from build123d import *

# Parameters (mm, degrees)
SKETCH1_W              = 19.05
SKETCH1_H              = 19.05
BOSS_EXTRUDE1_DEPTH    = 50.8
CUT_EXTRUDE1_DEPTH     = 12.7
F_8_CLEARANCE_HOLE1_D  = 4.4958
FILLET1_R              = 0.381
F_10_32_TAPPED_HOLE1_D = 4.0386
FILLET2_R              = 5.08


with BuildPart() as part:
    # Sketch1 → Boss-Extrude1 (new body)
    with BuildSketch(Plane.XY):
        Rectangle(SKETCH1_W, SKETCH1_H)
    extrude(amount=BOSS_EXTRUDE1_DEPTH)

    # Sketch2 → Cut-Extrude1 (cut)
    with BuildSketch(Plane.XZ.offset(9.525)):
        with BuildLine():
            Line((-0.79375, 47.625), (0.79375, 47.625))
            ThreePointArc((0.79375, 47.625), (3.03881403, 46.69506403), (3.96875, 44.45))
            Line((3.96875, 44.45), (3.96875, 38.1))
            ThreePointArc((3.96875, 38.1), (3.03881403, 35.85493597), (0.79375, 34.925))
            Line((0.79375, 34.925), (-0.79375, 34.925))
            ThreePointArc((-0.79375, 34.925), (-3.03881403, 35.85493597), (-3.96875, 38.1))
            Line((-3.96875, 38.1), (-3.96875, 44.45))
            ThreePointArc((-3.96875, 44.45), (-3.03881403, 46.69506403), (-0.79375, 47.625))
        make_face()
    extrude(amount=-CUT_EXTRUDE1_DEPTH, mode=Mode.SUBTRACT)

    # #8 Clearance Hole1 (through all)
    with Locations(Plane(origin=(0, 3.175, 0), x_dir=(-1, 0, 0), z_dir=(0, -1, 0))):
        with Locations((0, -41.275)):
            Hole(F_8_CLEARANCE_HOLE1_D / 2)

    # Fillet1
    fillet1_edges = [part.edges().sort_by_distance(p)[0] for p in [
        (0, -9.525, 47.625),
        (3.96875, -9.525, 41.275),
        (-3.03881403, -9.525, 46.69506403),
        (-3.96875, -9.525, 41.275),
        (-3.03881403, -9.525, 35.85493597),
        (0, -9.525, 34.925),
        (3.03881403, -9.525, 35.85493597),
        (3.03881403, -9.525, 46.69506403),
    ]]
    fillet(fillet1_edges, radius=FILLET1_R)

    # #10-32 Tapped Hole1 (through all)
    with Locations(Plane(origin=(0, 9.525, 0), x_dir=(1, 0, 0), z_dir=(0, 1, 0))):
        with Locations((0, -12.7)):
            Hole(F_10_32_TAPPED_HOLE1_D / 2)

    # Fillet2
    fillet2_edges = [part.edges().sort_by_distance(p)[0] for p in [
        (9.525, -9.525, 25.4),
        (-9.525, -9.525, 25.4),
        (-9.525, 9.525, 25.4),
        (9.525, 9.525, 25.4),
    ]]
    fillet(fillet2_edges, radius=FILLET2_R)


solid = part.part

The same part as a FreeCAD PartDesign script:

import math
import FreeCAD as App
import Part
import Sketcher
from FreeCAD import Vector
Q = App.Units.Quantity


def edges_at(feature, points):
    """Names of the edges that pass closest to the given points."""
    edges = feature.Shape.Edges
    near = lambda p: min(range(len(edges)), key=lambda i: edges[i].distToShape(Part.Vertex(*p))[0])
    return sorted({f"Edge{near(p) + 1}" for p in points})


def add_polygon(sketch, points):
    """Adds a closed chain of lines whose ends are joined by coincident constraints."""
    first, n = sketch.GeometryCount, len(points)
    for a, b in zip(points, points[1:] + points[:1]):
        sketch.addGeometry(Part.LineSegment(App.Vector(*a, 0), App.Vector(*b, 0)), False)
    for i in range(n):
        sketch.addConstraint(Sketcher.Constraint("Coincident", first + i, 2, first + (i + 1) % n, 1))

doc = App.newDocument("Part")
body = doc.addObject("PartDesign::Body", "Body")

sketch1 = doc.addObject("Sketcher::SketchObject", "Sketch")
body.addObject(sketch1)
sketch1.AttachmentSupport = (doc.XY_Plane, [""])
sketch1.MapMode = "FlatFace"
add_polygon(sketch1, [(-9.525, 9.525), (-9.525, -9.525), (9.525, -9.525), (9.525, 9.525)])
sketch1.addConstraint(Sketcher.Constraint("Vertical", 0))
sketch1.addConstraint(Sketcher.Constraint("Horizontal", 1))
sketch1.addConstraint(Sketcher.Constraint("Vertical", 2))
sketch1.addConstraint(Sketcher.Constraint("Horizontal", 3))
sketch1.addConstraint(Sketcher.Constraint("Symmetric", 0, 2, 2, 2, -1, 1))
sketch1.addConstraint(Sketcher.Constraint("Equal", 3, 0))
sketch1.addConstraint(Sketcher.Constraint("DistanceX", 1, 1, 1, 2, Q("0.75 in")))
pad1 = doc.addObject("PartDesign::Pad", "Pad")
body.addObject(pad1)
pad1.Profile = sketch1
pad1.Length = Q("2 in")

sketch2 = doc.addObject("Sketcher::SketchObject", "Sketch001")
body.addObject(sketch2)
sketch2.AttachmentSupport = (doc.XZ_Plane, [""])
sketch2.MapMode = "FlatFace"
sketch2.AttachmentOffset = App.Placement(Vector(0, 0, 0.375 * 25.4), App.Rotation())
sketch2.addGeometry(Part.LineSegment(Vector(0.79375, 47.625, 0), Vector(-0.79375, 47.625, 0)), False)
sketch2.addGeometry(Part.ArcOfCircle(Part.Circle(Vector(-0.79375, 44.45, 0), Vector(0, 0, 1), 3.175), math.radians(90), math.radians(180)), False)
sketch2.addGeometry(Part.LineSegment(Vector(-3.96875, 44.45, 0), Vector(-3.96875, 38.1, 0)), False)
sketch2.addGeometry(Part.ArcOfCircle(Part.Circle(Vector(-0.79375, 38.1, 0), Vector(0, 0, 1), 3.175), math.radians(-180), math.radians(-90)), False)
sketch2.addGeometry(Part.LineSegment(Vector(-0.79375, 34.925, 0), Vector(0.79375, 34.925, 0)), False)
sketch2.addGeometry(Part.ArcOfCircle(Part.Circle(Vector(0.79375, 38.1, 0), Vector(0, 0, 1), 3.175), math.radians(-90), math.radians(0)), False)
sketch2.addGeometry(Part.LineSegment(Vector(3.96875, 38.1, 0), Vector(3.96875, 44.45, 0)), False)
sketch2.addGeometry(Part.ArcOfCircle(Part.Circle(Vector(0.79375, 44.45, 0), Vector(0, 0, 1), 3.175), math.radians(0), math.radians(90)), False)
sketch2.addConstraint(Sketcher.Constraint("Tangent", 0, 2, 1, 1))
sketch2.addConstraint(Sketcher.Constraint("Tangent", 1, 2, 2, 1))
sketch2.addConstraint(Sketcher.Constraint("Tangent", 2, 2, 3, 1))
sketch2.addConstraint(Sketcher.Constraint("Tangent", 3, 2, 4, 1))
sketch2.addConstraint(Sketcher.Constraint("Tangent", 4, 2, 5, 1))
sketch2.addConstraint(Sketcher.Constraint("Tangent", 5, 2, 6, 1))
sketch2.addConstraint(Sketcher.Constraint("Tangent", 6, 2, 7, 1))
sketch2.addConstraint(Sketcher.Constraint("Tangent", 7, 2, 0, 1))
sketch2.addConstraint(Sketcher.Constraint("Horizontal", 0))
sketch2.addConstraint(Sketcher.Constraint("Vertical", 2))
sketch2.addConstraint(Sketcher.Constraint("Horizontal", 4))
sketch2.addConstraint(Sketcher.Constraint("Vertical", 6))
sketch2.addConstraint(Sketcher.Constraint("Equal", 1, 3))
sketch2.addConstraint(Sketcher.Constraint("Equal", 3, 5))
sketch2.addConstraint(Sketcher.Constraint("Equal", 5, 7))
sketch2.addConstraint(Sketcher.Constraint("Radius", 1, Q("0.125 in")))
sketch2.addConstraint(Sketcher.Constraint("DistanceY", 2, 2, 2, 1, Q("0.25 in")))
sketch2.addConstraint(Sketcher.Constraint("DistanceY", -1, 1, 3, 3, Q("1.5 in")))
sketch2.addConstraint(Sketcher.Constraint("DistanceX", 0, 2, 0, 1, Q("0.0625 in")))
sketch2.addConstraint(Sketcher.Constraint("DistanceX", 1, 3, -1, 1, Q("0.03125 in")))
pocket1 = doc.addObject("PartDesign::Pocket", "Pocket")
body.addObject(pocket1)
pocket1.Profile = sketch2
pocket1.Length = Q("0.5 in")

sketch3 = doc.addObject("Sketcher::SketchObject", "Sketch002")
body.addObject(sketch3)
sketch3.AttachmentSupport = (doc.XZ_Plane, [""])
sketch3.MapMode = "FlatFace"
sketch3.AttachmentOffset = App.Placement(Vector(0, 0, -0.125 * 25.4), App.Rotation())
sketch3.addGeometry(Part.Circle(Vector(0, 41.275, 0), Vector(0, 0, 1), 2.2479), False)
sketch3.addConstraint(Sketcher.Constraint("PointOnObject", 0, 3, -2))
sketch3.addConstraint(Sketcher.Constraint("Diameter", 0, Q("0.177 in")))
sketch3.addConstraint(Sketcher.Constraint("DistanceY", -1, 1, 0, 3, Q("1.625 in")))
doc.recompute()
hole = doc.addObject("PartDesign::Hole", "Hole")
body.addObject(hole)
hole.Profile = sketch3
hole.ThreadType = "None"
hole.Diameter = Q("0.177 in")
hole.DepthType = "ThroughAll"
doc.recompute()

fillet = doc.addObject("PartDesign::Fillet", "Fillet")
body.addObject(fillet)
fillet.Base = (hole, edges_at(hole, [
    (0, -9.525, 47.625),
    (3.969, -9.525, 41.275),
    (-3.039, -9.525, 46.695),
    (-3.969, -9.525, 41.275),
    (-3.039, -9.525, 35.855),
    (0, -9.525, 34.925),
    (3.039, -9.525, 35.855),
    (3.039, -9.525, 46.695),
]))
fillet.Radius = Q("0.015 in")

sketch4 = doc.addObject("Sketcher::SketchObject", "Sketch003")
body.addObject(sketch4)
sketch4.AttachmentSupport = (doc.XZ_Plane, [""])
sketch4.MapMode = "FlatFace"
sketch4.AttachmentOffset = App.Placement(Vector(0, 0, -0.375 * 25.4), App.Rotation())
sketch4.addGeometry(Part.Circle(Vector(0, 12.7, 0), Vector(0, 0, 1), 2.0193), False)
sketch4.addConstraint(Sketcher.Constraint("PointOnObject", 0, 3, -2))
sketch4.addConstraint(Sketcher.Constraint("Diameter", 0, Q("0.159 in")))
sketch4.addConstraint(Sketcher.Constraint("DistanceY", -1, 1, 0, 3, Q("0.5 in")))
doc.recompute()
hole2 = doc.addObject("PartDesign::Hole", "Hole001")
body.addObject(hole2)
hole2.Profile = sketch4
hole2.ThreadType = "None"
hole2.Diameter = Q("0.159 in")
hole2.DepthType = "ThroughAll"
hole2.Reversed = True
doc.recompute()

fillet2 = doc.addObject("PartDesign::Fillet", "Fillet001")
body.addObject(fillet2)
fillet2.Base = (hole2, edges_at(hole2, [
    (9.525, -9.525, 25.4),
    (-9.525, -9.525, 25.4),
    (-9.525, 9.525, 25.4),
    (9.525, 9.525, 25.4),
]))
fillet2.Radius = Q("0.2 in")

doc.recompute()
